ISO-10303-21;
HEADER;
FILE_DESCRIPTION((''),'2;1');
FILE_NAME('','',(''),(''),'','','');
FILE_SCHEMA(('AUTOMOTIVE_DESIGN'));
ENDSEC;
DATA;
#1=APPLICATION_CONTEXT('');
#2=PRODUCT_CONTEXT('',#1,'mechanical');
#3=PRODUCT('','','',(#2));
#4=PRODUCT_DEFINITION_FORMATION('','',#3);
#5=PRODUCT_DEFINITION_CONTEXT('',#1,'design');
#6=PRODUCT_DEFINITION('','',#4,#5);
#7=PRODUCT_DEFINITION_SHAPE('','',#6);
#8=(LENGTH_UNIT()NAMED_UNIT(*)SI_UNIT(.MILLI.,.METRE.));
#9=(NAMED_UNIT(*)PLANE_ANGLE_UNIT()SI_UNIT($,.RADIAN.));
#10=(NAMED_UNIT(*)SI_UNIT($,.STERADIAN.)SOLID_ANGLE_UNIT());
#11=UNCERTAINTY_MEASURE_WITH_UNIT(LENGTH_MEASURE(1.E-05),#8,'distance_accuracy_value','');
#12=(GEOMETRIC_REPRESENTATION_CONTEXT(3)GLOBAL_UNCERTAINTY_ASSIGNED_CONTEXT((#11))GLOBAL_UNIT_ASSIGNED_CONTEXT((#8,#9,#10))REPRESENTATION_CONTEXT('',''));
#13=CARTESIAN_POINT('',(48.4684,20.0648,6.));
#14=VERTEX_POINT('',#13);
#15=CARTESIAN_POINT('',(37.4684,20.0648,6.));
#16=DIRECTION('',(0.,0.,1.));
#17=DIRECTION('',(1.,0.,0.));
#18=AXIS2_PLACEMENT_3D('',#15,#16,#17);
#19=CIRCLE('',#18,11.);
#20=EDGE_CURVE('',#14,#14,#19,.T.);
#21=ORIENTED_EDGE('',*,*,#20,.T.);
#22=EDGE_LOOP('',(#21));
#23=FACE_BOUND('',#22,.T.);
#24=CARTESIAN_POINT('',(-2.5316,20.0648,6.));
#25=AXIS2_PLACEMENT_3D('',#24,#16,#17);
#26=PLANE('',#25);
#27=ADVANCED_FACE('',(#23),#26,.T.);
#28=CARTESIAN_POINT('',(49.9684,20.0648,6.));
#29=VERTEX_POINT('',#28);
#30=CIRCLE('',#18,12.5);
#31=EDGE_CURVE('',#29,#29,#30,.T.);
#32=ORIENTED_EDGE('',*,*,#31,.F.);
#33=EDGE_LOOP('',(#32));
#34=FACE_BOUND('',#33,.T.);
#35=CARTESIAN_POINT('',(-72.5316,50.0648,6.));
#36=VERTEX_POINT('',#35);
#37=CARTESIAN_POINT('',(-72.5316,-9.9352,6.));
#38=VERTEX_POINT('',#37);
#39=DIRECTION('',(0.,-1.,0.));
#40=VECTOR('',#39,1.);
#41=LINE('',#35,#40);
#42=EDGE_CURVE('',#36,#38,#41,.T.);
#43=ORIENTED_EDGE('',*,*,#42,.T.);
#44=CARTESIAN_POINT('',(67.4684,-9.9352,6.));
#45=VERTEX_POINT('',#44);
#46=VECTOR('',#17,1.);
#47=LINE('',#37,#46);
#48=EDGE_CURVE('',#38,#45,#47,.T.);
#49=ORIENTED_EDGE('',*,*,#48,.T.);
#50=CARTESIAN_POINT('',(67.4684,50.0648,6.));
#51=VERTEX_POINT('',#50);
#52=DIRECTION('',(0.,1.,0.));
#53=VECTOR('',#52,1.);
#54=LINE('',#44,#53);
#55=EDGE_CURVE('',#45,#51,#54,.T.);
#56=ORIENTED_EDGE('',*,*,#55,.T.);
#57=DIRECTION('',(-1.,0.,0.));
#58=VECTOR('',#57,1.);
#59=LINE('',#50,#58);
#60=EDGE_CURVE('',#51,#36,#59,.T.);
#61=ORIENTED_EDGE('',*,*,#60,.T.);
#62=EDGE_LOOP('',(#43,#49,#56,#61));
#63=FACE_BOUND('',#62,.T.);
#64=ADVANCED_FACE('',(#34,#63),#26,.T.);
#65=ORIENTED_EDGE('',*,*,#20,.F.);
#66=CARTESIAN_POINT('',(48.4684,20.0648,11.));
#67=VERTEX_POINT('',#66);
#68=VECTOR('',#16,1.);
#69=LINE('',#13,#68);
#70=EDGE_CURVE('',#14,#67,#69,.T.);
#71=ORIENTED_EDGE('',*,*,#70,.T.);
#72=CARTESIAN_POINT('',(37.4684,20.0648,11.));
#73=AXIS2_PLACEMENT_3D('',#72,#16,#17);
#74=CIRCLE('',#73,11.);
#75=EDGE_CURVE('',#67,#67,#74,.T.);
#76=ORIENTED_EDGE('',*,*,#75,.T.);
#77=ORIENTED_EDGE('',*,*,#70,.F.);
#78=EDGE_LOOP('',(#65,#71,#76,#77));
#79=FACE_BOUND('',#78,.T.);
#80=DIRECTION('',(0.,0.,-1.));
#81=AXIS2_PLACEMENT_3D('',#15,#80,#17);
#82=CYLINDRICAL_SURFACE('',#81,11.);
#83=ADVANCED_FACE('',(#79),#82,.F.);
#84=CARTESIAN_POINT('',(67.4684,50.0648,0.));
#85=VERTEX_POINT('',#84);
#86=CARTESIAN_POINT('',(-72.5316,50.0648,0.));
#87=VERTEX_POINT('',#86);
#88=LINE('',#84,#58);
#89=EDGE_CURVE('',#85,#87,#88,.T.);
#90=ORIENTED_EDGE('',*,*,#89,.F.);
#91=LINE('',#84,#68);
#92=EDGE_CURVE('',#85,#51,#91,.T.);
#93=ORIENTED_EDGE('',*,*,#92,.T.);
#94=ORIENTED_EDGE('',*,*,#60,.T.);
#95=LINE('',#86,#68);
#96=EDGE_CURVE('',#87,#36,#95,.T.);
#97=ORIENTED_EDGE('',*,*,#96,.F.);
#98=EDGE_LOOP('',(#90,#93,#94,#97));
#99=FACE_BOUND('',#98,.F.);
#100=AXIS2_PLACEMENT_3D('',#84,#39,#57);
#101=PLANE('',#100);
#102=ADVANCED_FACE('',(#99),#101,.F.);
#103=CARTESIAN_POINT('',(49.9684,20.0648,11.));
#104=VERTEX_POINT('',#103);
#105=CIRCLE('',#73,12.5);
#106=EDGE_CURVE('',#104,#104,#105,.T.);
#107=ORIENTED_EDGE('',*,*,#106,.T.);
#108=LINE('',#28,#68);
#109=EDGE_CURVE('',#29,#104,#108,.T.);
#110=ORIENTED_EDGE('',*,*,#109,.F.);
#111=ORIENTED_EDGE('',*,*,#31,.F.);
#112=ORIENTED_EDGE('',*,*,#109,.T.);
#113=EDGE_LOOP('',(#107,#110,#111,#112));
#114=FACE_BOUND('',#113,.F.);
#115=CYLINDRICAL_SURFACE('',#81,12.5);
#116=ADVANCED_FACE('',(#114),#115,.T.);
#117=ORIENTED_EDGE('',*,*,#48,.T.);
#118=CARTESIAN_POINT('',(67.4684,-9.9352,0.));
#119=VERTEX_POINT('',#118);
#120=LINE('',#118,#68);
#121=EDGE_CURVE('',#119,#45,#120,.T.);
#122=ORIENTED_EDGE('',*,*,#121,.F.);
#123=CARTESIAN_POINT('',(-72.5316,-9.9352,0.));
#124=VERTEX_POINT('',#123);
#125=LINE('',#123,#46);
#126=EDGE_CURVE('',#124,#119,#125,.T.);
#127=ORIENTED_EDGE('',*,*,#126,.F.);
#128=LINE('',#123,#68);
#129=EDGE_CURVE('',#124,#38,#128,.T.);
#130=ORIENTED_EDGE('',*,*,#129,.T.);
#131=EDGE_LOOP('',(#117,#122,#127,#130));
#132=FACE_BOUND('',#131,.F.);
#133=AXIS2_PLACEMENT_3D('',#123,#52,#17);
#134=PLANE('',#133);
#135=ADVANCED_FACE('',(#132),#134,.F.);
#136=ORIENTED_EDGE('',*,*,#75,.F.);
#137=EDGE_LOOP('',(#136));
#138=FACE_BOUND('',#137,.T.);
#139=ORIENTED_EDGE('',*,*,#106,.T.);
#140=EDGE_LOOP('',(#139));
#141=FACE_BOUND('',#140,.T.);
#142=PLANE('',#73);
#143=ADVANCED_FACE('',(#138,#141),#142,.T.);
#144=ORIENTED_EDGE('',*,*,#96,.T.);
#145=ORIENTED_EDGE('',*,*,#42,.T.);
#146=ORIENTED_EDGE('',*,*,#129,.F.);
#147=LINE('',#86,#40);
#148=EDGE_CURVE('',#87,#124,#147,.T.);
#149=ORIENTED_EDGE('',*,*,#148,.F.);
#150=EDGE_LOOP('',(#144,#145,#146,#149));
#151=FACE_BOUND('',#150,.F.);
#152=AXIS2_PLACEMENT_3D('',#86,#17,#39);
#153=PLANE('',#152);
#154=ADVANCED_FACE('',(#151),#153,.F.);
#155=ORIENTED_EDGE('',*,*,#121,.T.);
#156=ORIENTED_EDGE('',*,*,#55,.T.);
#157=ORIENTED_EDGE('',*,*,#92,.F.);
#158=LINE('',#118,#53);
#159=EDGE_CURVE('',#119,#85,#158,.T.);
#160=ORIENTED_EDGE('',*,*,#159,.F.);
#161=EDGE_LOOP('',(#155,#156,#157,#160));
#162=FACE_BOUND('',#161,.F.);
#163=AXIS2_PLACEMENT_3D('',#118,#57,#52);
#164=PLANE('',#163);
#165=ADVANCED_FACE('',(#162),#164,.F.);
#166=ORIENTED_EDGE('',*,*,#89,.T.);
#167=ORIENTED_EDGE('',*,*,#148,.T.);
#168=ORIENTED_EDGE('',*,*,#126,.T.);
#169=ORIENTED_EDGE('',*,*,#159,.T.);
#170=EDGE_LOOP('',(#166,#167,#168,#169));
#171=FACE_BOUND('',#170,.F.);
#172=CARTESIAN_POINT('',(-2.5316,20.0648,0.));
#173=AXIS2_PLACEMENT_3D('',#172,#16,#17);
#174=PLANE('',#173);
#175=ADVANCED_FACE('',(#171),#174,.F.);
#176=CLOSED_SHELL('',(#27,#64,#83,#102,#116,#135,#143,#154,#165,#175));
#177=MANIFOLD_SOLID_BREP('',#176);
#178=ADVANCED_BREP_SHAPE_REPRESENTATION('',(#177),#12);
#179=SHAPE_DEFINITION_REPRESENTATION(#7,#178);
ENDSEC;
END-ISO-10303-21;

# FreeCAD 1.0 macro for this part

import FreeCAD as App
import Part
import Sketcher
from FreeCAD import Vector


def add_polygon(sketch, points):
    """Adds a closed chain of lines whose ends are joined by coincident constraints."""
    first, n = sketch.GeometryCount, len(points)
    for a, b in zip(points, points[1:] + points[:1]):
        sketch.addGeometry(Part.LineSegment(App.Vector(*a, 0), App.Vector(*b, 0)), False)
    for i in range(n):
        sketch.addConstraint(Sketcher.Constraint("Coincident", first + i, 2, first + (i + 1) % n, 1))

doc = App.newDocument("Part")
body = doc.addObject("PartDesign::Body", "Body")

sketch1 = doc.addObject("Sketcher::SketchObject", "Sketch")
body.addObject(sketch1)
sketch1.AttachmentSupport = (doc.XY_Plane, [""])
sketch1.MapMode = "FlatFace"
add_polygon(sketch1, [(-73, 50), (-73, -10), (67, -10), (67, 50)])
sketch1.addConstraint([
    Sketcher.Constraint("Vertical", 0),
    Sketcher.Constraint("Horizontal", 1),
    Sketcher.Constraint("Vertical", 2),
    Sketcher.Constraint("Horizontal", 3),
    Sketcher.Constraint("DistanceX", 1, 1, 1, 2, 140.0),
    Sketcher.Constraint("DistanceY", 0, 2, 0, 1, 60.0),
    Sketcher.Constraint("DistanceX", 0, 2, -1, 1, 72.5316),
    Sketcher.Constraint("DistanceY", 0, 2, -1, 1, 9.9352),
])
pad1 = doc.addObject("PartDesign::Pad", "Pad")
body.addObject(pad1)
pad1.Profile = sketch1
pad1.Length = 6

sketch2 = doc.addObject("Sketcher::SketchObject", "Sketch001")
body.addObject(sketch2)
sketch2.AttachmentSupport = (doc.XY_Plane, [""])
sketch2.MapMode = "FlatFace"
sketch2.AttachmentOffset = App.Placement(Vector(0, 0, 6), App.Rotation())
sketch2.addGeometry([
    Part.Circle(Vector(37, 20, 0), Vector(0, 0, 1), 12),
    Part.Circle(Vector(37, 20, 0), Vector(0, 0, 1), 11),
], False)
sketch2.addConstraint([
    Sketcher.Constraint("Coincident", 1, 3, 0, 3),
    Sketcher.Constraint("Diameter", 0, 25.0),
    Sketcher.Constraint("Diameter", 1, 22.0),
    Sketcher.Constraint("DistanceX", -1, 1, 0, 3, 37.4684),
    Sketcher.Constraint("DistanceY", -1, 1, 0, 3, 20.0648),
])
pad2 = doc.addObject("PartDesign::Pad", "Pad001")
body.addObject(pad2)
pad2.Profile = sketch2
pad2.Length = 5

doc.recompute()
